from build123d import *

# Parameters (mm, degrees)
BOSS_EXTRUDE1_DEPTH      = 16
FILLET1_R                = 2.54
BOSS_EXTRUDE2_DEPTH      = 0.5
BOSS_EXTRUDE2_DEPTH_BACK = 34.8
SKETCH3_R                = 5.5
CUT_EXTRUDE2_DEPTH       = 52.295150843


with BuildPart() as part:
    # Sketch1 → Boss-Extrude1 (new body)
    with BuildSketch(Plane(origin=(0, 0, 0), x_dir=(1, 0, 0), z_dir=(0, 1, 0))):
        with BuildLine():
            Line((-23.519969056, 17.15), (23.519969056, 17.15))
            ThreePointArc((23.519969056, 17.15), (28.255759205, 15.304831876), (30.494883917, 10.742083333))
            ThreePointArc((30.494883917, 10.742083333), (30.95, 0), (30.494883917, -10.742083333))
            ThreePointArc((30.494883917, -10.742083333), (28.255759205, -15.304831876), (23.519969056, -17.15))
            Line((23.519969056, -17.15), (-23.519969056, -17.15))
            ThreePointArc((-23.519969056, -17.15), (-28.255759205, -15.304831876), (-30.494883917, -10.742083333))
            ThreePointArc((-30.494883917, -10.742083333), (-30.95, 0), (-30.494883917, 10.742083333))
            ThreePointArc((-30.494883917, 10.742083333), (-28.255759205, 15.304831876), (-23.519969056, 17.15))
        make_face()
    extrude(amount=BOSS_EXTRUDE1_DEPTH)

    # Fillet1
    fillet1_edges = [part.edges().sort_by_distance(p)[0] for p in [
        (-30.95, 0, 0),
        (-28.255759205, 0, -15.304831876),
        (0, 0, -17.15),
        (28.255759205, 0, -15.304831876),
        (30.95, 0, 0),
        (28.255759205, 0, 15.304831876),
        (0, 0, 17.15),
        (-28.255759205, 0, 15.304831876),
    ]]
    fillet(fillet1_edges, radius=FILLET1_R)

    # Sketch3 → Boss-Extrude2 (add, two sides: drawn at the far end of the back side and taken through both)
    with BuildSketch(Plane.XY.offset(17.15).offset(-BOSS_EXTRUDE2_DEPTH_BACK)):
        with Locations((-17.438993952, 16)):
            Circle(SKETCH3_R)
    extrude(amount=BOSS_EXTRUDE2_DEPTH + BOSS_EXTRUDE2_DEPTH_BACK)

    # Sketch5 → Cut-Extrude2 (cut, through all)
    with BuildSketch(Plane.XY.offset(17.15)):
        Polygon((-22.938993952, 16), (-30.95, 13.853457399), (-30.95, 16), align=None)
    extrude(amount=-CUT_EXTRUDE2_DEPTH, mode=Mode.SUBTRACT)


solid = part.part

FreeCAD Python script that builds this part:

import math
import FreeCAD as App
import Part
import Sketcher
Q = App.Units.Quantity


def edges_at(feature, points):
    """Names of the edges that pass closest to the given points."""
    edges = feature.Shape.Edges
    near = lambda p: min(range(len(edges)), key=lambda i: edges[i].distToShape(Part.Vertex(*p))[0])
    return sorted({f"Edge{near(p) + 1}" for p in points})


def add_polygon(sketch, points):
    """Adds a closed chain of lines whose ends are joined by coincident constraints."""
    first, n = sketch.GeometryCount, len(points)
    for a, b in zip(points, points[1:] + points[:1]):
        sketch.addGeometry(Part.LineSegment(App.Vector(*a, 0), App.Vector(*b, 0)), False)
    for i in range(n):
        sketch.addConstraint(Sketcher.Constraint("Coincident", first + i, 2, first + (i + 1) % n, 1))

doc = App.newDocument("Part")
body = doc.addObject("PartDesign::Body", "Body")

sketch1 = doc.addObject("Sketcher::SketchObject", "Sketch")
body.addObject(sketch1)
sketch1.AttachmentSupport = (doc.XZ_Plane, [""])
sketch1.MapMode = "FlatFace"
sketch1.addGeometry([
    Part.LineSegment(App.Vector(24, -17, 0), App.Vector(-24, -17, 0)),
    Part.ArcOfCircle(Part.Circle(App.Vector(-24, -10, 0), App.Vector(0, 0, 1), 7), math.radians(-175), math.radians(-90)),
    Part.ArcOfCircle(Part.Circle(App.Vector(96, 0, 0), App.Vector(0, 0, 1), 127), math.radians(175.15), math.radians(184.85)),
    Part.ArcOfCircle(Part.Circle(App.Vector(-24, 10, 0), App.Vector(0, 0, 1), 7), math.radians(90), math.radians(175)),
    Part.LineSegment(App.Vector(-24, 17, 0), App.Vector(24, 17, 0)),
    Part.ArcOfCircle(Part.Circle(App.Vector(24, 10, 0), App.Vector(0, 0, 1), 7), math.radians(5), math.radians(90)),
    Part.ArcOfCircle(Part.Circle(App.Vector(-96, 0, 0), App.Vector(0, 0, 1), 127), math.radians(-4.85), math.radians(4.85)),
    Part.ArcOfCircle(Part.Circle(App.Vector(24, -10, 0), App.Vector(0, 0, 1), 7), math.radians(-90), math.radians(-5)),
], False)
sketch1.addConstraint([
    Sketcher.Constraint("Tangent", 0, 2, 1, 2),
    Sketcher.Constraint("Tangent", 1, 1, 2, 2),
    Sketcher.Constraint("Tangent", 2, 1, 3, 2),
    Sketcher.Constraint("Tangent", 3, 1, 4, 1),
    Sketcher.Constraint("Tangent", 4, 2, 5, 2),
    Sketcher.Constraint("Tangent", 5, 1, 6, 2),
    Sketcher.Constraint("Tangent", 6, 1, 7, 2),
    Sketcher.Constraint("Tangent", 7, 1, 0, 1),
    Sketcher.Constraint("Horizontal", 0),
    Sketcher.Constraint("Horizontal", 4),
    Sketcher.Constraint("Equal", 1, 3),
    Sketcher.Constraint("Equal", 3, 5),
    Sketcher.Constraint("Equal", 2, 6),
    Sketcher.Constraint("Equal", 5, 7),
    Sketcher.Constraint("Symmetric", 1, 3, 5, 3, -1, 1),
    Sketcher.Constraint("Symmetric", 2, 3, 6, 3, -2),
    Sketcher.Constraint("Radius", 1, Q("7 mm")),
    Sketcher.Constraint("Radius", 2, Q("127 mm")),
    Sketcher.Constraint("DistanceY", 1, 3, 3, 3, Q("20.3 mm")),
    Sketcher.Constraint("DistanceX", 6, 3, 2, 3, Q("192.1 mm")),
])
pad1 = doc.addObject("PartDesign::Pad", "Pad")
body.addObject(pad1)
pad1.Profile = sketch1
pad1.Length = 16
pad1.Reversed = True
doc.recompute()

fillet = doc.addObject("PartDesign::Fillet", "Fillet")
body.addObject(fillet)
fillet.Base = (pad1, edges_at(pad1, [
    (-30.95, 0, 0),
    (-28.256, 0, -15.305),
    (0, 0, -17.15),
    (28.256, 0, -15.305),
    (30.95, 0, 0),
    (28.256, 0, 15.305),
    (0, 0, 17.15),
    (-28.256, 0, 15.305),
]))
fillet.Radius = 2.54

sketch2 = doc.addObject("Sketcher::SketchObject", "Sketch001")
body.addObject(sketch2)
sketch2.AttachmentSupport = (doc.XY_Plane, [""])
sketch2.MapMode = "FlatFace"
sketch2.AttachmentOffset = App.Placement(App.Vector(0, 0, 17.15), App.Rotation())
sketch2.addGeometry(Part.Circle(App.Vector(-17, 16, 0), App.Vector(0, 0, 1), 6), False)
sketch2.addConstraint([
    Sketcher.Constraint("Diameter", 0, Q("11 mm")),
    Sketcher.Constraint("DistanceY", -1, 1, 0, 3, Q("16 mm")),
    Sketcher.Constraint("DistanceX", 0, 3, -1, 1, Q("17.438994 mm")),
])
pad2 = doc.addObject("PartDesign::Pad", "Pad001")
body.addObject(pad2)
pad2.Profile = sketch2
pad2.Type = "TwoLengths"
pad2.Length = 0.5
pad2.Length2 = 34.8

sketch3 = doc.addObject("Sketcher::SketchObject", "Sketch002")
body.addObject(sketch3)
sketch3.AttachmentSupport = (doc.XY_Plane, [""])
sketch3.MapMode = "FlatFace"
sketch3.AttachmentOffset = App.Placement(App.Vector(0, 0, 17.15), App.Rotation())
add_polygon(sketch3, [(-30.9, 13.9), (-22.9, 16), (-30.9, 16)])
sketch3.addConstraint([
    Sketcher.Constraint("Horizontal", 1),
    Sketcher.Constraint("Vertical", 2),
    Sketcher.Constraint("Angle", 0, Q("15 deg")),
    Sketcher.Constraint("DistanceY", -1, 1, 0, 2, Q("16 mm")),
    Sketcher.Constraint("DistanceX", 1, 2, -1, 1, Q("30.95 mm")),
    Sketcher.Constraint("DistanceX", 1, 2, 1, 1, Q("8.011006 mm")),
])
pocket1 = doc.addObject("PartDesign::Pocket", "Pocket")
body.addObject(pocket1)
pocket1.Profile = sketch3
pocket1.Type = "ThroughAll"

doc.recompute()
